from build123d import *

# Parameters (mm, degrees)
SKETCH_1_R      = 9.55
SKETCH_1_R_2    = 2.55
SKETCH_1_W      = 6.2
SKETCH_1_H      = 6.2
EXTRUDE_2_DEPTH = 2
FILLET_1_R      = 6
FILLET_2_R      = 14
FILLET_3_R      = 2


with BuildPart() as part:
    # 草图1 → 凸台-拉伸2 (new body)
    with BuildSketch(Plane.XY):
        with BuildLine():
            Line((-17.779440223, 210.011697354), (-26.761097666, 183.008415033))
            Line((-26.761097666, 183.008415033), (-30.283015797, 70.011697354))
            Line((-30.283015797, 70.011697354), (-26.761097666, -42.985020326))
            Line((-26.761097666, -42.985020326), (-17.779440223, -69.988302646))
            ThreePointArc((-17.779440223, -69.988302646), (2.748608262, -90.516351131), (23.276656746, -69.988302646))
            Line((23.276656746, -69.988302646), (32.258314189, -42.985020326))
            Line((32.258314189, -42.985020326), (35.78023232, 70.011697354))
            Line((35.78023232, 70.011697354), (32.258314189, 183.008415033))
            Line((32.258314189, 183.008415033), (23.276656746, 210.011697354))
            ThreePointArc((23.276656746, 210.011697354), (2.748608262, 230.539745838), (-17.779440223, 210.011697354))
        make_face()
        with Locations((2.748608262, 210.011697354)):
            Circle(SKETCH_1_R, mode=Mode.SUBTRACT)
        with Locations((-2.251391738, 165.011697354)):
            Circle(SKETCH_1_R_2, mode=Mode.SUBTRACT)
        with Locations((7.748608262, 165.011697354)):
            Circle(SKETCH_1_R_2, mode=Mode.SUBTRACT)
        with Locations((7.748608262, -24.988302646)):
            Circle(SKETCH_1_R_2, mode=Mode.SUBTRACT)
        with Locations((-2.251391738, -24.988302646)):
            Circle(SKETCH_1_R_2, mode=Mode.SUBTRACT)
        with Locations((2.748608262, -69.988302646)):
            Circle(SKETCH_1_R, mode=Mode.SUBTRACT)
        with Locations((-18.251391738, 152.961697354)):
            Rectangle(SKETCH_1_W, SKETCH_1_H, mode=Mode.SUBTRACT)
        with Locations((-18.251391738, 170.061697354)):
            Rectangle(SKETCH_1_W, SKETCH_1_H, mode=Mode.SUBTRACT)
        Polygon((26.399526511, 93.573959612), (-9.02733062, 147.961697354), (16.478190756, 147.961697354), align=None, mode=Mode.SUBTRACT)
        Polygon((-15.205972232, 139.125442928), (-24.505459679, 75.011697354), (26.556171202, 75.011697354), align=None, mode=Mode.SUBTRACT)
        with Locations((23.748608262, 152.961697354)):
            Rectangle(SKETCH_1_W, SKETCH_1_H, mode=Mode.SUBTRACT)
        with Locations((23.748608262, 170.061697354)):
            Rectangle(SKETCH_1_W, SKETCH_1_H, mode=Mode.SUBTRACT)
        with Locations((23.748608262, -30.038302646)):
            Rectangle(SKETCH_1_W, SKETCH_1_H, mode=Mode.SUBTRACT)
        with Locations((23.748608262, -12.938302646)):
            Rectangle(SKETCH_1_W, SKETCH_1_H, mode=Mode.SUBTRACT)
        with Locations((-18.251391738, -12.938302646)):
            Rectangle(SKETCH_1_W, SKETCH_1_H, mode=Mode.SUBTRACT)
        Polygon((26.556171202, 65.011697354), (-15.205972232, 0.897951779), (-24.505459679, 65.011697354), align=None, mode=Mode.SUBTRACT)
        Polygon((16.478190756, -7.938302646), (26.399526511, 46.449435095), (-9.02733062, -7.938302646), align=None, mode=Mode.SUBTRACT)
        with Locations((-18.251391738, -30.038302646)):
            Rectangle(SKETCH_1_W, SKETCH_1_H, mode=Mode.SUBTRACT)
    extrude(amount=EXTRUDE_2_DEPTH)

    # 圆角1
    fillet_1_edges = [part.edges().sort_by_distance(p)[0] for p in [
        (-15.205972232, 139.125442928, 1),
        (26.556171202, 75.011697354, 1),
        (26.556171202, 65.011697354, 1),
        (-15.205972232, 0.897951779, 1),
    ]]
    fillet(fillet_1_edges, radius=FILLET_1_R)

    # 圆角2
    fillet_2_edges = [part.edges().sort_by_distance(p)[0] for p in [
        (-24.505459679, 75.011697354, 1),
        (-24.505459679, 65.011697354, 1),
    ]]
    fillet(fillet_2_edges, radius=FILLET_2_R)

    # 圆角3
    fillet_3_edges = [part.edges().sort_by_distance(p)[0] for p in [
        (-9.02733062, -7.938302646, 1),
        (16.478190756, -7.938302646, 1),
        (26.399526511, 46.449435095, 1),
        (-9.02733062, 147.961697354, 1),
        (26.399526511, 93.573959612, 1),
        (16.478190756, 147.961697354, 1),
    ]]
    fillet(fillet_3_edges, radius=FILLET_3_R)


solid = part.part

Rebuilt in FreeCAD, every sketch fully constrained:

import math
import FreeCAD as App
import Part
import Sketcher

V = App.Vector


def edges_at(feature, points):
    """Names of the edges that pass closest to the given points."""
    edges = feature.Shape.Edges
    near = lambda p: min(range(len(edges)), key=lambda i: edges[i].distToShape(Part.Vertex(*p))[0])
    return sorted({f"Edge{near(p) + 1}" for p in points})

doc = App.newDocument("Part")
body = doc.addObject("PartDesign::Body", "Body")

# Sketch on XY plane
sketch1 = body.newObject("Sketcher::SketchObject", "Sketch")
sketch1.AttachmentSupport = (doc.getObject("XY_Plane"), [""])
sketch1.MapMode = "FlatFace"
sketch1.addGeometry([
    Part.LineSegment(V(-17.77944, 210.011697, 0), V(-26.761098, 183.008415, 0)),  # 0
    Part.LineSegment(V(-26.761098, 183.008415, 0), V(-30.283016, 70.011697, 0)),  # 1
    Part.LineSegment(V(-30.283016, 70.011697, 0), V(-26.761098, -42.98502, 0)),  # 2
    Part.LineSegment(V(-26.761098, -42.98502, 0), V(-17.77944, -69.988303, 0)),  # 3
    Part.ArcOfCircle(Part.Circle(V(2.748608, -69.988303, 0), V(0, 0, 1), 20.528048), math.radians(180), math.radians(360)),  # 4
    Part.LineSegment(V(23.276657, -69.988303, 0), V(32.258314, -42.98502, 0)),  # 5
    Part.LineSegment(V(32.258314, -42.98502, 0), V(35.780232, 70.011697, 0)),  # 6
    Part.LineSegment(V(35.780232, 70.011697, 0), V(32.258314, 183.008415, 0)),  # 7
    Part.LineSegment(V(32.258314, 183.008415, 0), V(23.276657, 210.011697, 0)),  # 8
    Part.ArcOfCircle(Part.Circle(V(2.748608, 210.011697, 0), V(0, 0, 1), 20.528048), math.radians(0), math.radians(180)),  # 9
    Part.LineSegment(V(-15.151392, -33.138303, 0), V(-21.351392, -33.138303, 0)),  # 10
    Part.LineSegment(V(-21.351392, -33.138303, 0), V(-21.351392, -26.938303, 0)),  # 11
    Part.LineSegment(V(-21.351392, -26.938303, 0), V(-15.151392, -26.938303, 0)),  # 12
    Part.LineSegment(V(-15.151392, -26.938303, 0), V(-15.151392, -33.138303, 0)),  # 13
    Part.LineSegment(V(-15.151392, -16.038303, 0), V(-21.351392, -16.038303, 0)),  # 14
    Part.LineSegment(V(-21.351392, -16.038303, 0), V(-21.351392, -9.838303, 0)),  # 15
    Part.LineSegment(V(-21.351392, -9.838303, 0), V(-15.151392, -9.838303, 0)),  # 16
    Part.LineSegment(V(-15.151392, -9.838303, 0), V(-15.151392, -16.038303, 0)),  # 17
    Part.Circle(V(-2.251392, -24.988303, 0), V(0, 0, 1), 2.55),  # 18
    Part.LineSegment(V(-24.50546, 65.011697, 0), V(26.556171, 65.011697, 0)),  # 19
    Part.LineSegment(V(26.556171, 65.011697, 0), V(-15.205972, 0.897952, 0)),  # 20
    Part.LineSegment(V(-15.205972, 0.897952, 0), V(-24.50546, 65.011697, 0)),  # 21
    Part.Circle(V(2.748608, -69.988303, 0), V(0, 0, 1), 9.55),  # 22
    Part.Circle(V(7.748608, -24.988303, 0), V(0, 0, 1), 2.55),  # 23
    Part.LineSegment(V(26.848608, -33.138303, 0), V(20.648608, -33.138303, 0)),  # 24
    Part.LineSegment(V(20.648608, -33.138303, 0), V(20.648608, -26.938303, 0)),  # 25
    Part.LineSegment(V(20.648608, -26.938303, 0), V(26.848608, -26.938303, 0)),  # 26
    Part.LineSegment(V(26.848608, -26.938303, 0), V(26.848608, -33.138303, 0)),  # 27
    Part.LineSegment(V(26.848608, -16.038303, 0), V(20.648608, -16.038303, 0)),  # 28
    Part.LineSegment(V(20.648608, -16.038303, 0), V(20.648608, -9.838303, 0)),  # 29
    Part.LineSegment(V(20.648608, -9.838303, 0), V(26.848608, -9.838303, 0)),  # 30
    Part.LineSegment(V(26.848608, -9.838303, 0), V(26.848608, -16.038303, 0)),  # 31
    Part.LineSegment(V(26.399527, 46.449435, 0), V(16.478191, -7.938303, 0)),  # 32
    Part.LineSegment(V(16.478191, -7.938303, 0), V(-9.027331, -7.938303, 0)),  # 33
    Part.LineSegment(V(-9.027331, -7.938303, 0), V(26.399527, 46.449435, 0)),  # 34
    Part.LineSegment(V(-24.50546, 75.011697, 0), V(-15.205972, 139.125443, 0)),  # 35
    Part.LineSegment(V(-15.205972, 139.125443, 0), V(26.556171, 75.011697, 0)),  # 36
    Part.LineSegment(V(26.556171, 75.011697, 0), V(-24.50546, 75.011697, 0)),  # 37
    Part.LineSegment(V(-15.151392, 149.861697, 0), V(-21.351392, 149.861697, 0)),  # 38
    Part.LineSegment(V(-21.351392, 149.861697, 0), V(-21.351392, 156.061697, 0)),  # 39
    Part.LineSegment(V(-21.351392, 156.061697, 0), V(-15.151392, 156.061697, 0)),  # 40
    Part.LineSegment(V(-15.151392, 156.061697, 0), V(-15.151392, 149.861697, 0)),  # 41
    Part.LineSegment(V(-15.151392, 166.961697, 0), V(-21.351392, 166.961697, 0)),  # 42
    Part.LineSegment(V(-21.351392, 166.961697, 0), V(-21.351392, 173.161697, 0)),  # 43
    Part.LineSegment(V(-21.351392, 173.161697, 0), V(-15.151392, 173.161697, 0)),  # 44
    Part.LineSegment(V(-15.151392, 173.161697, 0), V(-15.151392, 166.961697, 0)),  # 45
    Part.Circle(V(-2.251392, 165.011697, 0), V(0, 0, 1), 2.55),  # 46
    Part.LineSegment(V(16.478191, 147.961697, 0), V(26.399527, 93.57396, 0)),  # 47
    Part.LineSegment(V(26.399527, 93.57396, 0), V(-9.027331, 147.961697, 0)),  # 48
    Part.LineSegment(V(-9.027331, 147.961697, 0), V(16.478191, 147.961697, 0)),  # 49
    Part.Circle(V(7.748608, 165.011697, 0), V(0, 0, 1), 2.55),  # 50
    Part.Circle(V(2.748608, 210.011697, 0), V(0, 0, 1), 9.55),  # 51
    Part.LineSegment(V(26.848608, 149.861697, 0), V(20.648608, 149.861697, 0)),  # 52
    Part.LineSegment(V(20.648608, 149.861697, 0), V(20.648608, 156.061697, 0)),  # 53
    Part.LineSegment(V(20.648608, 156.061697, 0), V(26.848608, 156.061697, 0)),  # 54
    Part.LineSegment(V(26.848608, 156.061697, 0), V(26.848608, 149.861697, 0)),  # 55
    Part.LineSegment(V(26.848608, 166.961697, 0), V(20.648608, 166.961697, 0)),  # 56
    Part.LineSegment(V(20.648608, 166.961697, 0), V(20.648608, 173.161697, 0)),  # 57
    Part.LineSegment(V(20.648608, 173.161697, 0), V(26.848608, 173.161697, 0)),  # 58
    Part.LineSegment(V(26.848608, 173.161697, 0), V(26.848608, 166.961697, 0)),  # 59
], False)
sketch1.addConstraint([
    Sketcher.Constraint("Coincident", 0, 2, 1, 1),
    Sketcher.Constraint("Coincident", 1, 2, 2, 1),
    Sketcher.Constraint("Coincident", 2, 2, 3, 1),
    Sketcher.Constraint("Coincident", 3, 2, 4, 1),
    Sketcher.Constraint("Coincident", 4, 2, 5, 1),
    Sketcher.Constraint("Coincident", 5, 2, 6, 1),
    Sketcher.Constraint("Coincident", 6, 2, 7, 1),
    Sketcher.Constraint("Coincident", 7, 2, 8, 1),
    Sketcher.Constraint("Coincident", 8, 2, 9, 1),
    Sketcher.Constraint("Coincident", 9, 2, 0, 1),
    Sketcher.Constraint("Coincident", 10, 2, 11, 1),
    Sketcher.Constraint("Coincident", 11, 2, 12, 1),
    Sketcher.Constraint("Coincident", 12, 2, 13, 1),
    Sketcher.Constraint("Coincident", 13, 2, 10, 1),
    Sketcher.Constraint("Coincident", 14, 2, 15, 1),
    Sketcher.Constraint("Coincident", 15, 2, 16, 1),
    Sketcher.Constraint("Coincident", 16, 2, 17, 1),
    Sketcher.Constraint("Coincident", 17, 2, 14, 1),
    Sketcher.Constraint("Coincident", 19, 2, 20, 1),
    Sketcher.Constraint("Coincident", 20, 2, 21, 1),
    Sketcher.Constraint("Coincident", 21, 2, 19, 1),
    Sketcher.Constraint("Coincident", 24, 2, 25, 1),
    Sketcher.Constraint("Coincident", 25, 2, 26, 1),
    Sketcher.Constraint("Coincident", 26, 2, 27, 1),
    Sketcher.Constraint("Coincident", 27, 2, 24, 1),
    Sketcher.Constraint("Coincident", 28, 2, 29, 1),
    Sketcher.Constraint("Coincident", 29, 2, 30, 1),
    Sketcher.Constraint("Coincident", 30, 2, 31, 1),
    Sketcher.Constraint("Coincident", 31, 2, 28, 1),
    Sketcher.Constraint("Coincident", 32, 2, 33, 1),
    Sketcher.Constraint("Coincident", 33, 2, 34, 1),
    Sketcher.Constraint("Coincident", 34, 2, 32, 1),
    Sketcher.Constraint("Coincident", 35, 2, 36, 1),
    Sketcher.Constraint("Coincident", 36, 2, 37, 1),
    Sketcher.Constraint("Coincident", 37, 2, 35, 1),
    Sketcher.Constraint("Coincident", 38, 2, 39, 1),
    Sketcher.Constraint("Coincident", 39, 2, 40, 1),
    Sketcher.Constraint("Coincident", 40, 2, 41, 1),
    Sketcher.Constraint("Coincident", 41, 2, 38, 1),
    Sketcher.Constraint("Coincident", 42, 2, 43, 1),
    Sketcher.Constraint("Coincident", 43, 2, 44, 1),
    Sketcher.Constraint("Coincident", 44, 2, 45, 1),
    Sketcher.Constraint("Coincident", 45, 2, 42, 1),
    Sketcher.Constraint("Coincident", 47, 2, 48, 1),
    Sketcher.Constraint("Coincident", 48, 2, 49, 1),
    Sketcher.Constraint("Coincident", 49, 2, 47, 1),
    Sketcher.Constraint("Coincident", 52, 2, 53, 1),
    Sketcher.Constraint("Coincident", 53, 2, 54, 1),
    Sketcher.Constraint("Coincident", 54, 2, 55, 1),
    Sketcher.Constraint("Coincident", 55, 2, 52, 1),
    Sketcher.Constraint("Coincident", 56, 2, 57, 1),
    Sketcher.Constraint("Coincident", 57, 2, 58, 1),
    Sketcher.Constraint("Coincident", 58, 2, 59, 1),
    Sketcher.Constraint("Coincident", 59, 2, 56, 1),
    Sketcher.Constraint("Horizontal", 10),
    Sketcher.Constraint("Vertical", 11),
    Sketcher.Constraint("Horizontal", 12),
    Sketcher.Constraint("Vertical", 13),
    Sketcher.Constraint("Horizontal", 14),
    Sketcher.Constraint("Vertical", 15),
    Sketcher.Constraint("Horizontal", 16),
    Sketcher.Constraint("Vertical", 17),
    Sketcher.Constraint("Horizontal", 19),
    Sketcher.Constraint("Horizontal", 24),
    Sketcher.Constraint("Vertical", 25),
    Sketcher.Constraint("Horizontal", 26),
    Sketcher.Constraint("Vertical", 27),
    Sketcher.Constraint("Horizontal", 28),
    Sketcher.Constraint("Vertical", 29),
    Sketcher.Constraint("Horizontal", 30),
    Sketcher.Constraint("Vertical", 31),
    Sketcher.Constraint("Horizontal", 33),
    Sketcher.Constraint("Horizontal", 37),
    Sketcher.Constraint("Horizontal", 38),
    Sketcher.Constraint("Vertical", 39),
    Sketcher.Constraint("Horizontal", 40),
    Sketcher.Constraint("Vertical", 41),
    Sketcher.Constraint("Horizontal", 42),
    Sketcher.Constraint("Vertical", 43),
    Sketcher.Constraint("Horizontal", 44),
    Sketcher.Constraint("Vertical", 45),
    Sketcher.Constraint("Horizontal", 49),
    Sketcher.Constraint("Horizontal", 52),
    Sketcher.Constraint("Vertical", 53),
    Sketcher.Constraint("Horizontal", 54),
    Sketcher.Constraint("Vertical", 55),
    Sketcher.Constraint("Horizontal", 56),
    Sketcher.Constraint("Vertical", 57),
    Sketcher.Constraint("Horizontal", 58),
    Sketcher.Constraint("Vertical", 59),
    Sketcher.Constraint("Coincident", 22, 3, 4, 3),
    Sketcher.Constraint("Coincident", 51, 3, 9, 3),
    Sketcher.Constraint("Equal", 4, 9),
    Sketcher.Constraint("Equal", 18, 23),
    Sketcher.Constraint("Equal", 23, 46),
    Sketcher.Constraint("Equal", 46, 50),
    Sketcher.Constraint("Equal", 22, 51),
    Sketcher.Constraint("Parallel", 0, 5),
    Sketcher.Constraint("Parallel", 1, 6),
    Sketcher.Constraint("Parallel", 2, 7),
    Sketcher.Constraint("Parallel", 3, 8),
    Sketcher.Constraint("Parallel", 20, 34),
    Sketcher.Constraint("Parallel", 36, 48),
    Sketcher.Constraint("Horizontal", 18, 3, 23, 3),
    Sketcher.Constraint("Horizontal", 46, 3, 50, 3),
    Sketcher.Constraint("Horizontal", 22, 3, 3, 2),
    Sketcher.Constraint("Horizontal", 3, 2, 4, 2),
    Sketcher.Constraint("Horizontal", 2, 2, 5, 2),
    Sketcher.Constraint("Horizontal", 1, 2, 6, 2),
    Sketcher.Constraint("Horizontal", 0, 2, 7, 2),
    Sketcher.Constraint("Horizontal", 51, 3, 8, 2),
    Sketcher.Constraint("Horizontal", 8, 2, 9, 2),
    Sketcher.Constraint("Horizontal", 13, 2, 24, 2),
    Sketcher.Constraint("Horizontal", 12, 2, 25, 2),
    Sketcher.Constraint("Horizontal", 17, 2, 28, 2),
    Sketcher.Constraint("Horizontal", 16, 2, 29, 2),
    Sketcher.Constraint("Horizontal", 41, 2, 52, 2),
    Sketcher.Constraint("Horizontal", 40, 2, 53, 2),
    Sketcher.Constraint("Horizontal", 45, 2, 56, 2),
    Sketcher.Constraint("Horizontal", 44, 2, 57, 2),
    Sketcher.Constraint("Vertical", 4, 3, 9, 3),
    Sketcher.Constraint("Vertical", 18, 3, 46, 3),
    Sketcher.Constraint("Vertical", 23, 3, 50, 3),
    Sketcher.Constraint("Vertical", 0, 2, 2, 2),
    Sketcher.Constraint("Vertical", 5, 2, 7, 2),
    Sketcher.Constraint("Vertical", 11, 2, 14, 2),
    Sketcher.Constraint("Vertical", 13, 2, 16, 2),
    Sketcher.Constraint("Vertical", 25, 2, 28, 2),
    Sketcher.Constraint("Vertical", 27, 2, 30, 2),
    Sketcher.Constraint("Vertical", 20, 2, 35, 2),
    Sketcher.Constraint("Vertical", 19, 2, 36, 2),
    Sketcher.Constraint("Vertical", 21, 2, 37, 2),
    Sketcher.Constraint("Vertical", 15, 2, 38, 2),
    Sketcher.Constraint("Vertical", 17, 2, 40, 2),
    Sketcher.Constraint("Vertical", 39, 2, 42, 2),
    Sketcher.Constraint("Vertical", 41, 2, 44, 2),
    Sketcher.Constraint("Vertical", 34, 2, 47, 2),
    Sketcher.Constraint("Vertical", 33, 2, 48, 2),
    Sketcher.Constraint("Vertical", 32, 2, 49, 2),
    Sketcher.Constraint("Vertical", 29, 2, 52, 2),
    Sketcher.Constraint("Vertical", 31, 2, 54, 2),
    Sketcher.Constraint("Vertical", 53, 2, 56, 2),
    Sketcher.Constraint("Vertical", 55, 2, 58, 2),
    Sketcher.Constraint("Equal", 16, 24),
    Sketcher.Constraint("Equal", 58, 11),
    Sketcher.Constraint("Equal", 13, 15),
    Sketcher.Constraint("Equal", 31, 39),
    Sketcher.Constraint("Equal", 41, 43),
    Sketcher.Constraint("Equal", 21, 35),
    Sketcher.Constraint("Diameter", 18, 5.1),
    Sketcher.Constraint("Diameter", 22, 19.1),
    Sketcher.Constraint("DistanceX", 10, 2, 10, 1, 6.2),
    Sketcher.Constraint("Radius", 4, 20.528048),
    Sketcher.Constraint("DistanceX", 19, 1, 19, 2, 51.061631),
    Sketcher.Constraint("DistanceX", 33, 2, 33, 1, 25.505521),
    Sketcher.Constraint("Distance", 0, 28.457818),
    Sketcher.Constraint("Distance", 1, 113.05159),
    Sketcher.Constraint("Distance", 20, 76.515678),
    Sketcher.Constraint("Distance", 32, 55.28525),
    Sketcher.Constraint("DistanceX", -1, 1, 4, 3, 2.748608),
    Sketcher.Constraint("DistanceX", 18, 3, -1, 1, 2.251392),
    Sketcher.Constraint("DistanceX", -1, 1, 23, 3, 7.748608),
    Sketcher.Constraint("DistanceY", 2, 2, -1, 1, 42.98502),
    Sketcher.Constraint("DistanceX", 10, 2, -1, 1, 21.351392),
    Sketcher.Constraint("DistanceX", -1, 1, 19, 2, 26.556171),
    Sketcher.Constraint("DistanceY", -1, 1, 20, 2, 0.897952),
    Sketcher.Constraint("DistanceX", -1, 1, 24, 2, 20.648608),
    Sketcher.Constraint("DistanceX", -1, 1, 32, 2, 16.478191),
    Sketcher.Constraint("DistanceY", -1, 1, 47, 2, 93.57396),
    Sketcher.Constraint("Distance", 21, 64.784665),
    Sketcher.Constraint("DistanceY", 4, 3, -1, 1, 69.988303),
    Sketcher.Constraint("DistanceY", -1, 1, 9, 3, 210.011697),
    Sketcher.Constraint("DistanceY", 18, 3, -1, 1, 24.988303),
    Sketcher.Constraint("DistanceY", -1, 1, 46, 3, 165.011697),
    Sketcher.Constraint("DistanceY", 10, 2, -1, 1, 33.138303),
    Sketcher.Constraint("DistanceY", 14, 2, -1, 1, 16.038303),
    Sketcher.Constraint("DistanceY", 32, 2, -1, 1, 7.938303),
    Sketcher.Constraint("DistanceY", -1, 1, 35, 2, 139.125443),
    Sketcher.Constraint("DistanceY", -1, 1, 38, 2, 149.861697),
    Sketcher.Constraint("DistanceY", -1, 1, 42, 2, 166.961697),
])
pad1 = body.newObject("PartDesign::Pad", "Pad")
pad1.Profile = sketch1
pad1.Length = 2
doc.recompute()

fillet = body.newObject("PartDesign::Fillet", "Fillet")
fillet.Base = (pad1, edges_at(pad1, [
    (-15.206, 139.125, 1),
    (26.556, 75.012, 1),
    (26.556, 65.012, 1),
    (-15.206, 0.898, 1),
]))
fillet.Radius = 6
doc.recompute()

fillet2 = body.newObject("PartDesign::Fillet", "Fillet001")
fillet2.Base = (fillet, edges_at(fillet, [(-24.505, 75.012, 1), (-24.505, 65.012, 1)]))
fillet2.Radius = 14
doc.recompute()

fillet3 = body.newObject("PartDesign::Fillet", "Fillet002")
fillet3.Base = (fillet2, edges_at(fillet2, [
    (-9.027, -7.938, 1),
    (16.478, -7.938, 1),
    (26.4, 46.449, 1),
    (-9.027, 147.962, 1),
    (26.4, 93.574, 1),
    (16.478, 147.962, 1),
]))
fillet3.Radius = 2

doc.recompute()
